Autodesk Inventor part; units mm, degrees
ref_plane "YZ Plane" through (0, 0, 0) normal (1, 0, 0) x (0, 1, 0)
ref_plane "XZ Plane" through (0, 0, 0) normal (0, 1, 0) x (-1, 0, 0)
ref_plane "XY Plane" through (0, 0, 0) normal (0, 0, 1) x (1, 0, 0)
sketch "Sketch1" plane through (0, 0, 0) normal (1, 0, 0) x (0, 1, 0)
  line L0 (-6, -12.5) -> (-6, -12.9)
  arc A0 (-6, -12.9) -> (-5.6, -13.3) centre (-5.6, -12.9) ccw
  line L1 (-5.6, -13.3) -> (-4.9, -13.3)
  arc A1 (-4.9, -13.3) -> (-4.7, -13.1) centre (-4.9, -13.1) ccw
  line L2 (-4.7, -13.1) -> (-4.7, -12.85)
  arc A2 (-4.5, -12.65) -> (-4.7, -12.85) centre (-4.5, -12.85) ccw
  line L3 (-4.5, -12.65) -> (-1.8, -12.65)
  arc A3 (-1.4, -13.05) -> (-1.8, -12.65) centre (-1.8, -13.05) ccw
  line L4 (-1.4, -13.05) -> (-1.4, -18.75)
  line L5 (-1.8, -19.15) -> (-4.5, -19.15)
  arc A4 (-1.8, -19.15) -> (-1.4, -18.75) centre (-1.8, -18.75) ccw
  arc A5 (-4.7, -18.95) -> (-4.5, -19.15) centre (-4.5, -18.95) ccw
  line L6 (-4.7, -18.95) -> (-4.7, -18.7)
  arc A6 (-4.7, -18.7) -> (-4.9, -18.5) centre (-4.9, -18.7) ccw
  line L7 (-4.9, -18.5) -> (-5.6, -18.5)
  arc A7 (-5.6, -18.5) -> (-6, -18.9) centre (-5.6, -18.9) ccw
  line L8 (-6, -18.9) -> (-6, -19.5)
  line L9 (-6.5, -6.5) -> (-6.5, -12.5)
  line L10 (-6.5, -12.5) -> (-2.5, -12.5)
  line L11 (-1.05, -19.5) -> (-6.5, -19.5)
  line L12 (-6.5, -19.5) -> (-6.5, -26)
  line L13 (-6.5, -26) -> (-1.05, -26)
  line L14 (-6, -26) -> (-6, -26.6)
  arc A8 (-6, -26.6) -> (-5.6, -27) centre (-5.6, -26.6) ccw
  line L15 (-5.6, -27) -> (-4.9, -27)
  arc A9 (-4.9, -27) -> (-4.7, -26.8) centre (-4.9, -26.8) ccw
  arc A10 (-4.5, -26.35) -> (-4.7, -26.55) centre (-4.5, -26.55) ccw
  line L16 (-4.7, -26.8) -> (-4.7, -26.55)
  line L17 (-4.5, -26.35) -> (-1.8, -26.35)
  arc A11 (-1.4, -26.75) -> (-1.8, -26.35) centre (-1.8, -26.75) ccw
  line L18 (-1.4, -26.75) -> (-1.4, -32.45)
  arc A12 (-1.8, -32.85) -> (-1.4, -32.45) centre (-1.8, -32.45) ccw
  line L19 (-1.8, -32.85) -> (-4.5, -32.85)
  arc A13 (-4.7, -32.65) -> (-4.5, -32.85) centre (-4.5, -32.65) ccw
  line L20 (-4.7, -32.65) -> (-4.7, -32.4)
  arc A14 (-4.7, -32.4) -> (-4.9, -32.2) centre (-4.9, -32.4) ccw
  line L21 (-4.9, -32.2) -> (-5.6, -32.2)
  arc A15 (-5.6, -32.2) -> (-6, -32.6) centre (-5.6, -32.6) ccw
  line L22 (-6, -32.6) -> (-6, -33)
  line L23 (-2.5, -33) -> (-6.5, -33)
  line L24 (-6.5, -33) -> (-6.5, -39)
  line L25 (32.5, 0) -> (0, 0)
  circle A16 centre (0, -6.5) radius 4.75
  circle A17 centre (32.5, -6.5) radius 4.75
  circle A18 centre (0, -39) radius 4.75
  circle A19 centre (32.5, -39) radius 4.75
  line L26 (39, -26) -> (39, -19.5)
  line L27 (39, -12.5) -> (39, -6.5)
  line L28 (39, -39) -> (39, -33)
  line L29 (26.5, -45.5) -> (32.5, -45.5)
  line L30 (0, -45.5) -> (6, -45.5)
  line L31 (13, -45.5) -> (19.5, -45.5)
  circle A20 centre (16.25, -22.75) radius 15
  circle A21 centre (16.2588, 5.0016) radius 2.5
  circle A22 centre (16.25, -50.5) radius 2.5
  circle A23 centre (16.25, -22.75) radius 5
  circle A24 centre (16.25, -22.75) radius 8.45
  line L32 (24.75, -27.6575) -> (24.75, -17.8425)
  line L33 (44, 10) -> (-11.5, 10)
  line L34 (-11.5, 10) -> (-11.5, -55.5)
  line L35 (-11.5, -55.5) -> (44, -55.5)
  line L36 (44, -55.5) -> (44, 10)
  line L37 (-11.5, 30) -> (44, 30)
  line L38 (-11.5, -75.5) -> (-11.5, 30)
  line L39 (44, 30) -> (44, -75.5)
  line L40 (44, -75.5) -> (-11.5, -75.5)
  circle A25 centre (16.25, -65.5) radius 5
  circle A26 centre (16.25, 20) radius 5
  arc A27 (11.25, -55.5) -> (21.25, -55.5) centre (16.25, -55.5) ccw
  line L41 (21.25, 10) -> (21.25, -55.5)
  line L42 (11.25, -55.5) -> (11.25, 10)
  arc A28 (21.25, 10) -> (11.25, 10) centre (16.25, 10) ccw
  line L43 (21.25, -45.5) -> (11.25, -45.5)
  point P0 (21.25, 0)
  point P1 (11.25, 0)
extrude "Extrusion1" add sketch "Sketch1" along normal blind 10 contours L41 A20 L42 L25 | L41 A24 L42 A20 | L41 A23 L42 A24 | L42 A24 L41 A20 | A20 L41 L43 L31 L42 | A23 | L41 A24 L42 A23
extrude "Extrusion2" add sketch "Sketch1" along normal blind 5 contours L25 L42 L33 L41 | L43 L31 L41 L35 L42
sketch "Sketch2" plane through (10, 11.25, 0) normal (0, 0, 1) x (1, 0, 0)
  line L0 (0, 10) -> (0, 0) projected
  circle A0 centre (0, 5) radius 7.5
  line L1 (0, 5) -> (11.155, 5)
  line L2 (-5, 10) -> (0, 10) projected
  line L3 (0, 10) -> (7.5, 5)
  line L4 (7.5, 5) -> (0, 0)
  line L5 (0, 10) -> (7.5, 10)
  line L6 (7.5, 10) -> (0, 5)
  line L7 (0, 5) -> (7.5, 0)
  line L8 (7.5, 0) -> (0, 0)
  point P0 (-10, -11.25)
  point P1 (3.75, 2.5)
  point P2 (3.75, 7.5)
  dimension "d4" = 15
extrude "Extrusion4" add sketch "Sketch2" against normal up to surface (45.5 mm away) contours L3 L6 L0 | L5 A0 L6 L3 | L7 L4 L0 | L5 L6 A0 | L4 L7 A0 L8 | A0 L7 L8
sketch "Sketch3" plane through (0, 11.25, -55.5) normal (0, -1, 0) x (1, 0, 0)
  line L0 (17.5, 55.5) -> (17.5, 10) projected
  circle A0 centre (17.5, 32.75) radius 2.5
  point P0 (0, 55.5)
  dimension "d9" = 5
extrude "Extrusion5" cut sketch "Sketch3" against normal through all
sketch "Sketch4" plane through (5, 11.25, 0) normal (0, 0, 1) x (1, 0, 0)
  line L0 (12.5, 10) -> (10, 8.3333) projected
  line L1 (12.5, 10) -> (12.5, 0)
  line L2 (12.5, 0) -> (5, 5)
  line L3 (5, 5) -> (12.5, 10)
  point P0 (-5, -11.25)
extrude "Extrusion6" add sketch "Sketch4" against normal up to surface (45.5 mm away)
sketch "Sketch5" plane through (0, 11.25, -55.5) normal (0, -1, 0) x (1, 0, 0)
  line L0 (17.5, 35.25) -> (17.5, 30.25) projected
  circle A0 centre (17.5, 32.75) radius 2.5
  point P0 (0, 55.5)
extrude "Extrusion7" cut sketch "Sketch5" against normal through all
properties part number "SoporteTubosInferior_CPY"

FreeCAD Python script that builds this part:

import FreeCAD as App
import Part
import Sketcher
from FreeCAD import Vector
Q = App.Units.Quantity


def add_polygon(sketch, points):
    """Adds a closed chain of lines whose ends are joined by coincident constraints."""
    first, n = sketch.GeometryCount, len(points)
    for a, b in zip(points, points[1:] + points[:1]):
        sketch.addGeometry(Part.LineSegment(App.Vector(*a, 0), App.Vector(*b, 0)), False)
    for i in range(n):
        sketch.addConstraint(Sketcher.Constraint("Coincident", first + i, 2, first + (i + 1) % n, 1))

doc = App.newDocument("Part")
body = doc.addObject("PartDesign::Body", "Body")

# Sketch on YZ plane
sketch1 = doc.addObject("Sketcher::SketchObject", "Sketch")
body.addObject(sketch1)
sketch1.AttachmentSupport = (doc.YZ_Plane, [""])
sketch1.MapMode = "FlatFace"
add_polygon(sketch1, [(21, 0), (11, 0), (11, -46), (21, -46)])  # lines 0-3
sketch1.addConstraint(Sketcher.Constraint("Horizontal", 0))
sketch1.addConstraint(Sketcher.Constraint("Vertical", 1))
sketch1.addConstraint(Sketcher.Constraint("Horizontal", 2))
sketch1.addConstraint(Sketcher.Constraint("Vertical", 3))
sketch1.addConstraint(Sketcher.Constraint("PointOnObject", 0, 2, -1))
sketch1.addConstraint(Sketcher.Constraint("DistanceX", 0, 2, 0, 1, Q("10 mm")))
sketch1.addConstraint(Sketcher.Constraint("DistanceY", 1, 2, 1, 1, Q("45.5 mm")))
sketch1.addConstraint(Sketcher.Constraint("DistanceX", -1, 1, 0, 2, Q("11.25 mm")))
pad1 = doc.addObject("PartDesign::Pad", "Pad")
body.addObject(pad1)
pad1.Profile = sketch1
pad1.Length = 10

# Sketch on YZ plane
sketch2 = doc.addObject("Sketcher::SketchObject", "Sketch001")
body.addObject(sketch2)
sketch2.AttachmentSupport = (doc.YZ_Plane, [""])
sketch2.MapMode = "FlatFace"
add_polygon(sketch2, [(11.2, 0), (21.2, 0), (21.2, 10), (11.2, 10)])  # lines 0-3
sketch2.addGeometry(Part.Circle(Vector(16.3, 5, 0), Vector(0, 0, 1), 2.5), False)  # 4
add_polygon(sketch2, [(21.2, -45.5), (11.2, -45.5), (11.2, -55.5), (21.2, -55.5)])  # lines 5-8
sketch2.addGeometry(Part.Circle(Vector(16.2, -50.5, 0), Vector(0, 0, 1), 2.5), False)  # 9
sketch2.addConstraint(Sketcher.Constraint("Horizontal", 0))
sketch2.addConstraint(Sketcher.Constraint("Vertical", 1))
sketch2.addConstraint(Sketcher.Constraint("Horizontal", 2))
sketch2.addConstraint(Sketcher.Constraint("Vertical", 3))
sketch2.addConstraint(Sketcher.Constraint("Horizontal", 5))
sketch2.addConstraint(Sketcher.Constraint("Vertical", 6))
sketch2.addConstraint(Sketcher.Constraint("Horizontal", 7))
sketch2.addConstraint(Sketcher.Constraint("Vertical", 8))
sketch2.addConstraint(Sketcher.Constraint("Equal", 4, 9))
sketch2.addConstraint(Sketcher.Constraint("PointOnObject", 0, 2, -1))
sketch2.addConstraint(Sketcher.Constraint("Vertical", 3, 2, 5, 2))
sketch2.addConstraint(Sketcher.Constraint("Vertical", 1, 2, 7, 2))
sketch2.addConstraint(Sketcher.Constraint("Equal", 7, 1))
sketch2.addConstraint(Sketcher.Constraint("Equal", 3, 6))
sketch2.addConstraint(Sketcher.Constraint("Diameter", 4, Q("5 mm")))
sketch2.addConstraint(Sketcher.Constraint("DistanceX", 0, 1, 0, 2, Q("10 mm")))
sketch2.addConstraint(Sketcher.Constraint("DistanceX", 9, 3, 0, 2, Q("5 mm")))
sketch2.addConstraint(Sketcher.Constraint("DistanceY", 9, 3, 5, 2, Q("5 mm")))
sketch2.addConstraint(Sketcher.Constraint("DistanceY", 9, 3, -1, 1, Q("50.5 mm")))
sketch2.addConstraint(Sketcher.Constraint("DistanceX", -1, 1, 9, 3, Q("16.25 mm")))
sketch2.addConstraint(Sketcher.Constraint("DistanceX", -1, 1, 4, 3, Q("16.2588 mm")))
sketch2.addConstraint(Sketcher.Constraint("DistanceY", -1, 1, 4, 3, Q("5.0016 mm")))
pad2 = doc.addObject("PartDesign::Pad", "Pad001")
body.addObject(pad2)
pad2.Profile = sketch2
pad2.Length = 5

# Sketch on XY plane
sketch3 = doc.addObject("Sketcher::SketchObject", "Sketch002")
body.addObject(sketch3)
sketch3.AttachmentSupport = (doc.XY_Plane, [""])
sketch3.MapMode = "FlatFace"
add_polygon(sketch3, [(10, 16), (18, 21), (10, 21)])  # lines 0-2
add_polygon(sketch3, [(10, 16), (10, 11), (18, 11)])  # lines 3-5
sketch3.addConstraint(Sketcher.Constraint("Horizontal", 1))
sketch3.addConstraint(Sketcher.Constraint("Vertical", 2))
sketch3.addConstraint(Sketcher.Constraint("Vertical", 3))
sketch3.addConstraint(Sketcher.Constraint("Horizontal", 4))
sketch3.addConstraint(Sketcher.Constraint("Coincident", 5, 2, 2, 2))
sketch3.addConstraint(Sketcher.Constraint("Vertical", 0, 2, 4, 2))
sketch3.addConstraint(Sketcher.Constraint("Equal", 2, 3))
sketch3.addConstraint(Sketcher.Constraint("DistanceY", 2, 2, 2, 1, Q("5 mm")))
sketch3.addConstraint(Sketcher.Constraint("DistanceX", 1, 2, 1, 1, Q("7.5 mm")))
sketch3.addConstraint(Sketcher.Constraint("DistanceX", -1, 1, 1, 2, Q("10 mm")))
sketch3.addConstraint(Sketcher.Constraint("DistanceY", -1, 1, 0, 2, Q("21.25 mm")))
pad3 = doc.addObject("PartDesign::Pad", "Pad002")
body.addObject(pad3)
pad3.Profile = sketch3
pad3.Length = 45.5
pad3.Reversed = True

# Sketch on XZ plane
sketch4 = doc.addObject("Sketcher::SketchObject", "Sketch003")
body.addObject(sketch4)
sketch4.AttachmentSupport = (doc.XZ_Plane, [""])
sketch4.MapMode = "FlatFace"
sketch4.AttachmentOffset = App.Placement(Vector(0, 0, -11.25), App.Rotation())
sketch4.addGeometry(Part.Circle(Vector(17.5, -22.8, 0), Vector(0, 0, 1), 2.5), False)
sketch4.addConstraint(Sketcher.Constraint("Diameter", 0, Q("5 mm")))
sketch4.addConstraint(Sketcher.Constraint("DistanceX", -1, 1, 0, 3, Q("17.5 mm")))
sketch4.addConstraint(Sketcher.Constraint("DistanceY", 0, 3, -1, 1, Q("22.75 mm")))
pocket1 = doc.addObject("PartDesign::Pocket", "Pocket")
body.addObject(pocket1)
pocket1.Profile = sketch4
pocket1.Type = "ThroughAll"

# Sketch on XY plane
sketch5 = doc.addObject("Sketcher::SketchObject", "Sketch004")
body.addObject(sketch5)
sketch5.AttachmentSupport = (doc.XY_Plane, [""])
sketch5.MapMode = "FlatFace"
add_polygon(sketch5, [(17.5, 11.2), (17.5, 21.2), (15, 19.6), (10, 16.2)])  # lines 0-3
sketch5.addConstraint(Sketcher.Constraint("Vertical", 0))
sketch5.addConstraint(Sketcher.Constraint("Parallel", 1, 2))
sketch5.addConstraint(Sketcher.Constraint("DistanceY", 0, 1, 0, 2, Q("10 mm")))
sketch5.addConstraint(Sketcher.Constraint("DistanceX", -1, 1, 1, 2, Q("15 mm")))
sketch5.addConstraint(Sketcher.Constraint("DistanceX", -1, 1, 2, 2, Q("10 mm")))
sketch5.addConstraint(Sketcher.Constraint("DistanceY", 2, 2, 0, 2, Q("5 mm")))
sketch5.addConstraint(Sketcher.Constraint("DistanceX", -1, 1, 0, 2, Q("17.5 mm")))
sketch5.addConstraint(Sketcher.Constraint("DistanceY", -1, 1, 0, 2, Q("21.25 mm")))
pad4 = doc.addObject("PartDesign::Pad", "Pad003")
body.addObject(pad4)
pad4.Profile = sketch5
pad4.Length = 45.5
pad4.Reversed = True

# Sketch on XZ plane
sketch6 = doc.addObject("Sketcher::SketchObject", "Sketch005")
body.addObject(sketch6)
sketch6.AttachmentSupport = (doc.XZ_Plane, [""])
sketch6.MapMode = "FlatFace"
sketch6.AttachmentOffset = App.Placement(Vector(0, 0, -11.25), App.Rotation())
sketch6.addGeometry(Part.Circle(Vector(17.5, -22.8, 0), Vector(0, 0, 1), 2.5), False)
sketch6.addConstraint(Sketcher.Constraint("Diameter", 0, Q("5 mm")))
sketch6.addConstraint(Sketcher.Constraint("DistanceX", -1, 1, 0, 3, Q("17.5 mm")))
sketch6.addConstraint(Sketcher.Constraint("DistanceY", 0, 3, -1, 1, Q("22.75 mm")))
pocket2 = doc.addObject("PartDesign::Pocket", "Pocket001")
body.addObject(pocket2)
pocket2.Profile = sketch6
pocket2.Type = "ThroughAll"

doc.recompute()
